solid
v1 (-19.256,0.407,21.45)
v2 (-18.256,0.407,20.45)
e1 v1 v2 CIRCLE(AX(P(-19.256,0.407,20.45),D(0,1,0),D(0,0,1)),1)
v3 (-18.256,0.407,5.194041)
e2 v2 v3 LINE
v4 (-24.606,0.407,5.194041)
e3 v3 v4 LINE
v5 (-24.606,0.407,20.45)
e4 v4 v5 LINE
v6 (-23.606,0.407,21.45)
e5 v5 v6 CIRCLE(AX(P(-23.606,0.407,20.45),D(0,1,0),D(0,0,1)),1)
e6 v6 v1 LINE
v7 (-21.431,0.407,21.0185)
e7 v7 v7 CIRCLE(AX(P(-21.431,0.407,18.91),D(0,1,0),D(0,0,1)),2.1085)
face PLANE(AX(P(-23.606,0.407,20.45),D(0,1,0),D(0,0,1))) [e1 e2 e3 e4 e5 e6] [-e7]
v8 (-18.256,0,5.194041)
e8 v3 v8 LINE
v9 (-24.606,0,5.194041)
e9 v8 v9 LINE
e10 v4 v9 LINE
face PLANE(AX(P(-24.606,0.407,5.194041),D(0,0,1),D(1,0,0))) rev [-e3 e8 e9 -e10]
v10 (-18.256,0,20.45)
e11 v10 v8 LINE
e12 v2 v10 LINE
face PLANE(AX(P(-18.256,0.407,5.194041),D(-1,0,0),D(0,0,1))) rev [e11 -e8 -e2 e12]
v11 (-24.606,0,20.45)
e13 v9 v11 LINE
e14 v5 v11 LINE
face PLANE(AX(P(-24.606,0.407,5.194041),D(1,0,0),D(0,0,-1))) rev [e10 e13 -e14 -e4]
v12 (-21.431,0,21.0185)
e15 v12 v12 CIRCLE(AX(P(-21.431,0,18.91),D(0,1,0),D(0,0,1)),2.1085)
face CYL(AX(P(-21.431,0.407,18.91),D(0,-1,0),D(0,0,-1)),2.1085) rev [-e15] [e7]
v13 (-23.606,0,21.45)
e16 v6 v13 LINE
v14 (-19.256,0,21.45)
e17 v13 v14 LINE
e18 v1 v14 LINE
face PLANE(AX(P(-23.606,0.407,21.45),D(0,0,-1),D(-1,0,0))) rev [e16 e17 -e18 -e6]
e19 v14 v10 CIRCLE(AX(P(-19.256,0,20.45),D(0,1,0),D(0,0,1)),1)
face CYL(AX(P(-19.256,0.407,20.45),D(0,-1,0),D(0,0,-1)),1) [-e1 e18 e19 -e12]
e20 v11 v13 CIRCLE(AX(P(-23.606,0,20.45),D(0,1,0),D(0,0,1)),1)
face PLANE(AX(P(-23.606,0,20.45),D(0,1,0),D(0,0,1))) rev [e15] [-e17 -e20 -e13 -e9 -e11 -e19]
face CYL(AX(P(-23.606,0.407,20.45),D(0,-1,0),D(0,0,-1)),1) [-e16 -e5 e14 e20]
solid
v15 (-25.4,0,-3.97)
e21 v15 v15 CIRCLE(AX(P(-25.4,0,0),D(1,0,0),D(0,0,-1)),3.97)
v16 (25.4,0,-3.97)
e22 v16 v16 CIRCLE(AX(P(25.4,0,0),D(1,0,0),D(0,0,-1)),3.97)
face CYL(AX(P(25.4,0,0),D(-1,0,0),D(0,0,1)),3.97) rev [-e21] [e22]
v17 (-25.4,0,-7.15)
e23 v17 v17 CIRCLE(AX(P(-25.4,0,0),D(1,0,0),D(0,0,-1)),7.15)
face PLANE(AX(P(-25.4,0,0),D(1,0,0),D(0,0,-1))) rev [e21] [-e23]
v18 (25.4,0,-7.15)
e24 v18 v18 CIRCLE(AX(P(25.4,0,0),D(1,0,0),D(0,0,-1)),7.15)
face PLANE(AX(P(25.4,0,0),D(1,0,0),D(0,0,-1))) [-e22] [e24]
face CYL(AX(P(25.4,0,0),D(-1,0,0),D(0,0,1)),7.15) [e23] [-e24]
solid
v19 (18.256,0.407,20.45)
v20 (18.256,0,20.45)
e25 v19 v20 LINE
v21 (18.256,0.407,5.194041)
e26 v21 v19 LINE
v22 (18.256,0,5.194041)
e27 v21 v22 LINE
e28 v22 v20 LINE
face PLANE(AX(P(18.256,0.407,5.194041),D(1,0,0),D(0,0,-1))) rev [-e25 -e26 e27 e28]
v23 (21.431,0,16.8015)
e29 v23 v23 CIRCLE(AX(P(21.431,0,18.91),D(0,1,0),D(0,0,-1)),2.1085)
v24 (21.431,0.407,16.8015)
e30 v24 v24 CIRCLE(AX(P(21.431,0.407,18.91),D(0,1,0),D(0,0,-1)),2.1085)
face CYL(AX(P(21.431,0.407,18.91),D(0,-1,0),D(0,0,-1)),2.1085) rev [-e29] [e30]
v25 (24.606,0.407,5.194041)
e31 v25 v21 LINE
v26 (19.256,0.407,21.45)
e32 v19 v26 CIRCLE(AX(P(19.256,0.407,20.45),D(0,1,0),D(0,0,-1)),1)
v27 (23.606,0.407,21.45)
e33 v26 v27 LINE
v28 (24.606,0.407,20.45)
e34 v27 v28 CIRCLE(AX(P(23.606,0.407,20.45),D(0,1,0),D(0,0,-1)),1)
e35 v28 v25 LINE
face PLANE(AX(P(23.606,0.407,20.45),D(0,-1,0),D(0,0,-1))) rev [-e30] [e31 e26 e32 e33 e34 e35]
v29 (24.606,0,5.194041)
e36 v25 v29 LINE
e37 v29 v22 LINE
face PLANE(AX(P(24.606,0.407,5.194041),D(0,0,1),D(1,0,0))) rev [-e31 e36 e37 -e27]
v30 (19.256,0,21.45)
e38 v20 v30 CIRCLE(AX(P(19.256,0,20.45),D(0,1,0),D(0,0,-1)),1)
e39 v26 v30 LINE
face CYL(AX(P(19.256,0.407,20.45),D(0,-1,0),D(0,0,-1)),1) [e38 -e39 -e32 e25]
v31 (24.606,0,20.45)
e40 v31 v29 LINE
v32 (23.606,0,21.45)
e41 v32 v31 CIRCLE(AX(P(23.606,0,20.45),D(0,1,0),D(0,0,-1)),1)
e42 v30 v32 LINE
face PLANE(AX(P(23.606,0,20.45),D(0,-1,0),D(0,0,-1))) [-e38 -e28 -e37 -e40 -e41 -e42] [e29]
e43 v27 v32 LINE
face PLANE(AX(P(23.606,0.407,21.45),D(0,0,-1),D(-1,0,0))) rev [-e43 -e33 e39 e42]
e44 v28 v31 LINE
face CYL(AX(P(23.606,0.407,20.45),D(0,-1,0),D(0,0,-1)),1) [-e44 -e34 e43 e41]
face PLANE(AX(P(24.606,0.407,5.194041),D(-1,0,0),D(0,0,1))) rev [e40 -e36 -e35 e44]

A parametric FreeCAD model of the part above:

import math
import FreeCAD as App
import Part
import Sketcher
Q = App.Units.Quantity

doc = App.newDocument("Part")
body = doc.addObject("PartDesign::Body", "Body")

sketch1 = doc.addObject("Sketcher::SketchObject", "Sketch")
body.addObject(sketch1)
sketch1.AttachmentSupport = (doc.YZ_Plane, [""])
sketch1.MapMode = "FlatFace"
sketch1.addGeometry([
    Part.Circle(App.Vector(0, 0, 0), App.Vector(0, 0, 1), 7.2),
    Part.Circle(App.Vector(0, 0, 0), App.Vector(0, 0, 1), 4),
], False)
sketch1.addConstraint([
    Sketcher.Constraint("Coincident", 0, 3, -1, 1),
    Sketcher.Constraint("Coincident", 1, 3, -1, 1),
    Sketcher.Constraint("Diameter", 0, Q("14.3 mm")),
    Sketcher.Constraint("Diameter", 1, Q("7.94 mm")),
])
pad1 = doc.addObject("PartDesign::Pad", "Pad")
body.addObject(pad1)
pad1.Profile = sketch1
pad1.Length = 50.8
pad1.Midplane = True
body2 = doc.addObject("PartDesign::Body", "Body001")

sketch2 = doc.addObject("Sketcher::SketchObject", "Sketch001")
body2.addObject(sketch2)
sketch2.AttachmentSupport = (doc.getObject("XZ_Plane001"), [""])
sketch2.MapMode = "FlatFace"
sketch2.addGeometry([
    Part.LineSegment(App.Vector(-18.3, 5.2, 0), App.Vector(-24.6, 5.2, 0)),
    Part.LineSegment(App.Vector(-24.6, 5.2, 0), App.Vector(-24.6, 20.4, 0)),
    Part.ArcOfCircle(Part.Circle(App.Vector(-23.6, 20.4, 0), App.Vector(0, 0, 1), 1), math.radians(90), math.radians(180)),
    Part.LineSegment(App.Vector(-23.6, 21.4, 0), App.Vector(-19.3, 21.4, 0)),
    Part.ArcOfCircle(Part.Circle(App.Vector(-19.3, 20.4, 0), App.Vector(0, 0, 1), 1), math.radians(0), math.radians(90)),
    Part.LineSegment(App.Vector(-18.3, 20.4, 0), App.Vector(-18.3, 5.2, 0)),
    Part.Circle(App.Vector(-21.4, 18.9, 0), App.Vector(0, 0, 1), 2.1),
], False)
sketch2.addConstraint([
    Sketcher.Constraint("Coincident", 0, 2, 1, 1),
    Sketcher.Constraint("Tangent", 1, 2, 2, 2),
    Sketcher.Constraint("Tangent", 2, 1, 3, 1),
    Sketcher.Constraint("Tangent", 3, 2, 4, 2),
    Sketcher.Constraint("Tangent", 4, 1, 5, 1),
    Sketcher.Constraint("Coincident", 5, 2, 0, 1),
    Sketcher.Constraint("Horizontal", 0),
    Sketcher.Constraint("Vertical", 1),
    Sketcher.Constraint("Horizontal", 3),
    Sketcher.Constraint("Vertical", 5),
    Sketcher.Constraint("Equal", 2, 4),
    Sketcher.Constraint("Radius", 2, Q("1 mm")),
    Sketcher.Constraint("Diameter", 6, Q("4.217 mm")),
    Sketcher.Constraint("DistanceX", 0, 2, 0, 1, Q("6.35 mm")),
    Sketcher.Constraint("DistanceY", -1, 1, 2, 3, Q("20.45 mm")),
    Sketcher.Constraint("DistanceY", -1, 1, 6, 3, Q("18.91 mm")),
    Sketcher.Constraint("DistanceX", 2, 3, -1, 1, Q("23.606 mm")),
    Sketcher.Constraint("DistanceX", 6, 3, -1, 1, Q("21.431 mm")),
    Sketcher.Constraint("DistanceY", 1, 1, 1, 2, Q("15.255959 mm")),
])
pad2 = doc.addObject("PartDesign::Pad", "Pad001")
body2.addObject(pad2)
pad2.Profile = sketch2
pad2.Length = 0.407
pad2.Reversed = True
body3 = doc.addObject("PartDesign::Body", "Body002")

sketch3 = doc.addObject("Sketcher::SketchObject", "Sketch002")
body3.addObject(sketch3)
sketch3.AttachmentSupport = (doc.getObject("XZ_Plane002"), [""])
sketch3.MapMode = "FlatFace"
sketch3.addGeometry([
    Part.LineSegment(App.Vector(18.3, 5.2, 0), App.Vector(18.3, 20.4, 0)),
    Part.ArcOfCircle(Part.Circle(App.Vector(19.3, 20.4, 0), App.Vector(0, 0, 1), 1), math.radians(90), math.radians(180)),
    Part.LineSegment(App.Vector(19.3, 21.4, 0), App.Vector(23.6, 21.4, 0)),
    Part.ArcOfCircle(Part.Circle(App.Vector(23.6, 20.4, 0), App.Vector(0, 0, 1), 1), math.radians(0), math.radians(90)),
    Part.LineSegment(App.Vector(24.6, 20.4, 0), App.Vector(24.6, 5.2, 0)),
    Part.LineSegment(App.Vector(24.6, 5.2, 0), App.Vector(18.3, 5.2, 0)),
    Part.Circle(App.Vector(21.4, 18.9, 0), App.Vector(0, 0, 1), 2.1),
], False)
sketch3.addConstraint([
    Sketcher.Constraint("Tangent", 0, 2, 1, 2),
    Sketcher.Constraint("Tangent", 1, 1, 2, 1),
    Sketcher.Constraint("Tangent", 2, 2, 3, 2),
    Sketcher.Constraint("Tangent", 3, 1, 4, 1),
    Sketcher.Constraint("Coincident", 4, 2, 5, 1),
    Sketcher.Constraint("Coincident", 5, 2, 0, 1),
    Sketcher.Constraint("Vertical", 0),
    Sketcher.Constraint("Horizontal", 2),
    Sketcher.Constraint("Vertical", 4),
    Sketcher.Constraint("Horizontal", 5),
    Sketcher.Constraint("Equal", 1, 3),
    Sketcher.Constraint("Radius", 1, Q("1 mm")),
    Sketcher.Constraint("Diameter", 6, Q("4.217 mm")),
    Sketcher.Constraint("DistanceX", 2, 1, 2, 2, Q("4.35 mm")),
    Sketcher.Constraint("DistanceY", -1, 1, 1, 3, Q("20.45 mm")),
    Sketcher.Constraint("DistanceY", -1, 1, 6, 3, Q("18.91 mm")),
    Sketcher.Constraint("DistanceX", -1, 1, 1, 3, Q("19.256 mm")),
    Sketcher.Constraint("DistanceX", -1, 1, 6, 3, Q("21.431 mm")),
    Sketcher.Constraint("DistanceY", 0, 1, 0, 2, Q("15.255959 mm")),
])
pad3 = doc.addObject("PartDesign::Pad", "Pad002")
body3.addObject(pad3)
pad3.Profile = sketch3
pad3.Length = 0.407
pad3.Reversed = True

doc.recompute()
